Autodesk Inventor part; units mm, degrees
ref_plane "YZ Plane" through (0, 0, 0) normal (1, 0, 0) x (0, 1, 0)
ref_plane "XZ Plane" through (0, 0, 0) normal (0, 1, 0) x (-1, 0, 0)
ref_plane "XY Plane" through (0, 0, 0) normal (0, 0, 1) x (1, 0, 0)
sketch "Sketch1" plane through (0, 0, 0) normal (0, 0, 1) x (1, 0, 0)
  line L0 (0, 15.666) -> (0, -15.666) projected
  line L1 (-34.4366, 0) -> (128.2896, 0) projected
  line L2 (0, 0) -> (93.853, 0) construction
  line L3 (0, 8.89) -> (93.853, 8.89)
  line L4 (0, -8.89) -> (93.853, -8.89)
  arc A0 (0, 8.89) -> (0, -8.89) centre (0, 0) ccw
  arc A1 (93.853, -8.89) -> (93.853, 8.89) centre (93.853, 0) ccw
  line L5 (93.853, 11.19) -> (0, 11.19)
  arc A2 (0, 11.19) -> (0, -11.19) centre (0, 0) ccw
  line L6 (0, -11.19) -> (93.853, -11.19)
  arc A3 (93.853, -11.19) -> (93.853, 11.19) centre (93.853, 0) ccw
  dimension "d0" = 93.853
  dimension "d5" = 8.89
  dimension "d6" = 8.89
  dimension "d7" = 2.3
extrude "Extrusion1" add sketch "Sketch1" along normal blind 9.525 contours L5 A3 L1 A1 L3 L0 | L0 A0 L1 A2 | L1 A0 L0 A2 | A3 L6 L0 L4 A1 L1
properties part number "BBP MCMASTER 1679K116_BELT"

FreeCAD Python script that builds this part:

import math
import FreeCAD as App
import Part
import Sketcher
from FreeCAD import Vector
Q = App.Units.Quantity

doc = App.newDocument("Part")
body = doc.addObject("PartDesign::Body", "Body")

# Sketch on XY plane
sketch1 = doc.addObject("Sketcher::SketchObject", "Sketch")
body.addObject(sketch1)
sketch1.AttachmentSupport = (doc.XY_Plane, [""])
sketch1.MapMode = "FlatFace"
sketch1.addGeometry([
    Part.LineSegment(Vector(94, 11, 0), Vector(0, 11, 0)),  # 0
    Part.ArcOfCircle(Part.Circle(Vector(0, 0, 0), Vector(0, 0, 1), 11), math.radians(90), math.radians(270)),  # 1
    Part.LineSegment(Vector(0, -11, 0), Vector(94, -11, 0)),  # 2
    Part.ArcOfCircle(Part.Circle(Vector(94, 0, 0), Vector(0, 0, 1), 11), math.radians(-90), math.radians(90)),  # 3
    Part.ArcOfCircle(Part.Circle(Vector(94, 0, 0), Vector(0, 0, 1), 9), math.radians(-90), math.radians(90)),  # 4
    Part.LineSegment(Vector(94, -9, 0), Vector(0, -9, 0)),  # 5
    Part.ArcOfCircle(Part.Circle(Vector(0, 0, 0), Vector(0, 0, 1), 9), math.radians(90), math.radians(270)),  # 6
    Part.LineSegment(Vector(0, 9, 0), Vector(94, 9, 0)),  # 7
], False)
sketch1.addConstraint([
    Sketcher.Constraint("Tangent", 0, 2, 1, 1),
    Sketcher.Constraint("Tangent", 1, 2, 2, 1),
    Sketcher.Constraint("Tangent", 2, 2, 3, 1),
    Sketcher.Constraint("Tangent", 3, 2, 0, 1),
    Sketcher.Constraint("Tangent", 4, 1, 5, 1),
    Sketcher.Constraint("Tangent", 5, 2, 6, 2),
    Sketcher.Constraint("Tangent", 6, 1, 7, 1),
    Sketcher.Constraint("Tangent", 7, 2, 4, 2),
    Sketcher.Constraint("Horizontal", 0),
    Sketcher.Constraint("Horizontal", 2),
    Sketcher.Constraint("Horizontal", 5),
    Sketcher.Constraint("Horizontal", 7),
    Sketcher.Constraint("Coincident", 1, 3, -1, 1),
    Sketcher.Constraint("Coincident", 6, 3, -1, 1),
    Sketcher.Constraint("Vertical", 4, 3, 2, 2),
    Sketcher.Constraint("Radius", 4, Q("0.35 in")),
    Sketcher.Constraint("DistanceX", 0, 2, 0, 1, Q("3.695 in")),
    Sketcher.Constraint("Radius", 1, 11.19),
])
pad1 = doc.addObject("PartDesign::Pad", "Pad")
body.addObject(pad1)
pad1.Profile = sketch1
pad1.Length = Q("0.375 in")

doc.recompute()
